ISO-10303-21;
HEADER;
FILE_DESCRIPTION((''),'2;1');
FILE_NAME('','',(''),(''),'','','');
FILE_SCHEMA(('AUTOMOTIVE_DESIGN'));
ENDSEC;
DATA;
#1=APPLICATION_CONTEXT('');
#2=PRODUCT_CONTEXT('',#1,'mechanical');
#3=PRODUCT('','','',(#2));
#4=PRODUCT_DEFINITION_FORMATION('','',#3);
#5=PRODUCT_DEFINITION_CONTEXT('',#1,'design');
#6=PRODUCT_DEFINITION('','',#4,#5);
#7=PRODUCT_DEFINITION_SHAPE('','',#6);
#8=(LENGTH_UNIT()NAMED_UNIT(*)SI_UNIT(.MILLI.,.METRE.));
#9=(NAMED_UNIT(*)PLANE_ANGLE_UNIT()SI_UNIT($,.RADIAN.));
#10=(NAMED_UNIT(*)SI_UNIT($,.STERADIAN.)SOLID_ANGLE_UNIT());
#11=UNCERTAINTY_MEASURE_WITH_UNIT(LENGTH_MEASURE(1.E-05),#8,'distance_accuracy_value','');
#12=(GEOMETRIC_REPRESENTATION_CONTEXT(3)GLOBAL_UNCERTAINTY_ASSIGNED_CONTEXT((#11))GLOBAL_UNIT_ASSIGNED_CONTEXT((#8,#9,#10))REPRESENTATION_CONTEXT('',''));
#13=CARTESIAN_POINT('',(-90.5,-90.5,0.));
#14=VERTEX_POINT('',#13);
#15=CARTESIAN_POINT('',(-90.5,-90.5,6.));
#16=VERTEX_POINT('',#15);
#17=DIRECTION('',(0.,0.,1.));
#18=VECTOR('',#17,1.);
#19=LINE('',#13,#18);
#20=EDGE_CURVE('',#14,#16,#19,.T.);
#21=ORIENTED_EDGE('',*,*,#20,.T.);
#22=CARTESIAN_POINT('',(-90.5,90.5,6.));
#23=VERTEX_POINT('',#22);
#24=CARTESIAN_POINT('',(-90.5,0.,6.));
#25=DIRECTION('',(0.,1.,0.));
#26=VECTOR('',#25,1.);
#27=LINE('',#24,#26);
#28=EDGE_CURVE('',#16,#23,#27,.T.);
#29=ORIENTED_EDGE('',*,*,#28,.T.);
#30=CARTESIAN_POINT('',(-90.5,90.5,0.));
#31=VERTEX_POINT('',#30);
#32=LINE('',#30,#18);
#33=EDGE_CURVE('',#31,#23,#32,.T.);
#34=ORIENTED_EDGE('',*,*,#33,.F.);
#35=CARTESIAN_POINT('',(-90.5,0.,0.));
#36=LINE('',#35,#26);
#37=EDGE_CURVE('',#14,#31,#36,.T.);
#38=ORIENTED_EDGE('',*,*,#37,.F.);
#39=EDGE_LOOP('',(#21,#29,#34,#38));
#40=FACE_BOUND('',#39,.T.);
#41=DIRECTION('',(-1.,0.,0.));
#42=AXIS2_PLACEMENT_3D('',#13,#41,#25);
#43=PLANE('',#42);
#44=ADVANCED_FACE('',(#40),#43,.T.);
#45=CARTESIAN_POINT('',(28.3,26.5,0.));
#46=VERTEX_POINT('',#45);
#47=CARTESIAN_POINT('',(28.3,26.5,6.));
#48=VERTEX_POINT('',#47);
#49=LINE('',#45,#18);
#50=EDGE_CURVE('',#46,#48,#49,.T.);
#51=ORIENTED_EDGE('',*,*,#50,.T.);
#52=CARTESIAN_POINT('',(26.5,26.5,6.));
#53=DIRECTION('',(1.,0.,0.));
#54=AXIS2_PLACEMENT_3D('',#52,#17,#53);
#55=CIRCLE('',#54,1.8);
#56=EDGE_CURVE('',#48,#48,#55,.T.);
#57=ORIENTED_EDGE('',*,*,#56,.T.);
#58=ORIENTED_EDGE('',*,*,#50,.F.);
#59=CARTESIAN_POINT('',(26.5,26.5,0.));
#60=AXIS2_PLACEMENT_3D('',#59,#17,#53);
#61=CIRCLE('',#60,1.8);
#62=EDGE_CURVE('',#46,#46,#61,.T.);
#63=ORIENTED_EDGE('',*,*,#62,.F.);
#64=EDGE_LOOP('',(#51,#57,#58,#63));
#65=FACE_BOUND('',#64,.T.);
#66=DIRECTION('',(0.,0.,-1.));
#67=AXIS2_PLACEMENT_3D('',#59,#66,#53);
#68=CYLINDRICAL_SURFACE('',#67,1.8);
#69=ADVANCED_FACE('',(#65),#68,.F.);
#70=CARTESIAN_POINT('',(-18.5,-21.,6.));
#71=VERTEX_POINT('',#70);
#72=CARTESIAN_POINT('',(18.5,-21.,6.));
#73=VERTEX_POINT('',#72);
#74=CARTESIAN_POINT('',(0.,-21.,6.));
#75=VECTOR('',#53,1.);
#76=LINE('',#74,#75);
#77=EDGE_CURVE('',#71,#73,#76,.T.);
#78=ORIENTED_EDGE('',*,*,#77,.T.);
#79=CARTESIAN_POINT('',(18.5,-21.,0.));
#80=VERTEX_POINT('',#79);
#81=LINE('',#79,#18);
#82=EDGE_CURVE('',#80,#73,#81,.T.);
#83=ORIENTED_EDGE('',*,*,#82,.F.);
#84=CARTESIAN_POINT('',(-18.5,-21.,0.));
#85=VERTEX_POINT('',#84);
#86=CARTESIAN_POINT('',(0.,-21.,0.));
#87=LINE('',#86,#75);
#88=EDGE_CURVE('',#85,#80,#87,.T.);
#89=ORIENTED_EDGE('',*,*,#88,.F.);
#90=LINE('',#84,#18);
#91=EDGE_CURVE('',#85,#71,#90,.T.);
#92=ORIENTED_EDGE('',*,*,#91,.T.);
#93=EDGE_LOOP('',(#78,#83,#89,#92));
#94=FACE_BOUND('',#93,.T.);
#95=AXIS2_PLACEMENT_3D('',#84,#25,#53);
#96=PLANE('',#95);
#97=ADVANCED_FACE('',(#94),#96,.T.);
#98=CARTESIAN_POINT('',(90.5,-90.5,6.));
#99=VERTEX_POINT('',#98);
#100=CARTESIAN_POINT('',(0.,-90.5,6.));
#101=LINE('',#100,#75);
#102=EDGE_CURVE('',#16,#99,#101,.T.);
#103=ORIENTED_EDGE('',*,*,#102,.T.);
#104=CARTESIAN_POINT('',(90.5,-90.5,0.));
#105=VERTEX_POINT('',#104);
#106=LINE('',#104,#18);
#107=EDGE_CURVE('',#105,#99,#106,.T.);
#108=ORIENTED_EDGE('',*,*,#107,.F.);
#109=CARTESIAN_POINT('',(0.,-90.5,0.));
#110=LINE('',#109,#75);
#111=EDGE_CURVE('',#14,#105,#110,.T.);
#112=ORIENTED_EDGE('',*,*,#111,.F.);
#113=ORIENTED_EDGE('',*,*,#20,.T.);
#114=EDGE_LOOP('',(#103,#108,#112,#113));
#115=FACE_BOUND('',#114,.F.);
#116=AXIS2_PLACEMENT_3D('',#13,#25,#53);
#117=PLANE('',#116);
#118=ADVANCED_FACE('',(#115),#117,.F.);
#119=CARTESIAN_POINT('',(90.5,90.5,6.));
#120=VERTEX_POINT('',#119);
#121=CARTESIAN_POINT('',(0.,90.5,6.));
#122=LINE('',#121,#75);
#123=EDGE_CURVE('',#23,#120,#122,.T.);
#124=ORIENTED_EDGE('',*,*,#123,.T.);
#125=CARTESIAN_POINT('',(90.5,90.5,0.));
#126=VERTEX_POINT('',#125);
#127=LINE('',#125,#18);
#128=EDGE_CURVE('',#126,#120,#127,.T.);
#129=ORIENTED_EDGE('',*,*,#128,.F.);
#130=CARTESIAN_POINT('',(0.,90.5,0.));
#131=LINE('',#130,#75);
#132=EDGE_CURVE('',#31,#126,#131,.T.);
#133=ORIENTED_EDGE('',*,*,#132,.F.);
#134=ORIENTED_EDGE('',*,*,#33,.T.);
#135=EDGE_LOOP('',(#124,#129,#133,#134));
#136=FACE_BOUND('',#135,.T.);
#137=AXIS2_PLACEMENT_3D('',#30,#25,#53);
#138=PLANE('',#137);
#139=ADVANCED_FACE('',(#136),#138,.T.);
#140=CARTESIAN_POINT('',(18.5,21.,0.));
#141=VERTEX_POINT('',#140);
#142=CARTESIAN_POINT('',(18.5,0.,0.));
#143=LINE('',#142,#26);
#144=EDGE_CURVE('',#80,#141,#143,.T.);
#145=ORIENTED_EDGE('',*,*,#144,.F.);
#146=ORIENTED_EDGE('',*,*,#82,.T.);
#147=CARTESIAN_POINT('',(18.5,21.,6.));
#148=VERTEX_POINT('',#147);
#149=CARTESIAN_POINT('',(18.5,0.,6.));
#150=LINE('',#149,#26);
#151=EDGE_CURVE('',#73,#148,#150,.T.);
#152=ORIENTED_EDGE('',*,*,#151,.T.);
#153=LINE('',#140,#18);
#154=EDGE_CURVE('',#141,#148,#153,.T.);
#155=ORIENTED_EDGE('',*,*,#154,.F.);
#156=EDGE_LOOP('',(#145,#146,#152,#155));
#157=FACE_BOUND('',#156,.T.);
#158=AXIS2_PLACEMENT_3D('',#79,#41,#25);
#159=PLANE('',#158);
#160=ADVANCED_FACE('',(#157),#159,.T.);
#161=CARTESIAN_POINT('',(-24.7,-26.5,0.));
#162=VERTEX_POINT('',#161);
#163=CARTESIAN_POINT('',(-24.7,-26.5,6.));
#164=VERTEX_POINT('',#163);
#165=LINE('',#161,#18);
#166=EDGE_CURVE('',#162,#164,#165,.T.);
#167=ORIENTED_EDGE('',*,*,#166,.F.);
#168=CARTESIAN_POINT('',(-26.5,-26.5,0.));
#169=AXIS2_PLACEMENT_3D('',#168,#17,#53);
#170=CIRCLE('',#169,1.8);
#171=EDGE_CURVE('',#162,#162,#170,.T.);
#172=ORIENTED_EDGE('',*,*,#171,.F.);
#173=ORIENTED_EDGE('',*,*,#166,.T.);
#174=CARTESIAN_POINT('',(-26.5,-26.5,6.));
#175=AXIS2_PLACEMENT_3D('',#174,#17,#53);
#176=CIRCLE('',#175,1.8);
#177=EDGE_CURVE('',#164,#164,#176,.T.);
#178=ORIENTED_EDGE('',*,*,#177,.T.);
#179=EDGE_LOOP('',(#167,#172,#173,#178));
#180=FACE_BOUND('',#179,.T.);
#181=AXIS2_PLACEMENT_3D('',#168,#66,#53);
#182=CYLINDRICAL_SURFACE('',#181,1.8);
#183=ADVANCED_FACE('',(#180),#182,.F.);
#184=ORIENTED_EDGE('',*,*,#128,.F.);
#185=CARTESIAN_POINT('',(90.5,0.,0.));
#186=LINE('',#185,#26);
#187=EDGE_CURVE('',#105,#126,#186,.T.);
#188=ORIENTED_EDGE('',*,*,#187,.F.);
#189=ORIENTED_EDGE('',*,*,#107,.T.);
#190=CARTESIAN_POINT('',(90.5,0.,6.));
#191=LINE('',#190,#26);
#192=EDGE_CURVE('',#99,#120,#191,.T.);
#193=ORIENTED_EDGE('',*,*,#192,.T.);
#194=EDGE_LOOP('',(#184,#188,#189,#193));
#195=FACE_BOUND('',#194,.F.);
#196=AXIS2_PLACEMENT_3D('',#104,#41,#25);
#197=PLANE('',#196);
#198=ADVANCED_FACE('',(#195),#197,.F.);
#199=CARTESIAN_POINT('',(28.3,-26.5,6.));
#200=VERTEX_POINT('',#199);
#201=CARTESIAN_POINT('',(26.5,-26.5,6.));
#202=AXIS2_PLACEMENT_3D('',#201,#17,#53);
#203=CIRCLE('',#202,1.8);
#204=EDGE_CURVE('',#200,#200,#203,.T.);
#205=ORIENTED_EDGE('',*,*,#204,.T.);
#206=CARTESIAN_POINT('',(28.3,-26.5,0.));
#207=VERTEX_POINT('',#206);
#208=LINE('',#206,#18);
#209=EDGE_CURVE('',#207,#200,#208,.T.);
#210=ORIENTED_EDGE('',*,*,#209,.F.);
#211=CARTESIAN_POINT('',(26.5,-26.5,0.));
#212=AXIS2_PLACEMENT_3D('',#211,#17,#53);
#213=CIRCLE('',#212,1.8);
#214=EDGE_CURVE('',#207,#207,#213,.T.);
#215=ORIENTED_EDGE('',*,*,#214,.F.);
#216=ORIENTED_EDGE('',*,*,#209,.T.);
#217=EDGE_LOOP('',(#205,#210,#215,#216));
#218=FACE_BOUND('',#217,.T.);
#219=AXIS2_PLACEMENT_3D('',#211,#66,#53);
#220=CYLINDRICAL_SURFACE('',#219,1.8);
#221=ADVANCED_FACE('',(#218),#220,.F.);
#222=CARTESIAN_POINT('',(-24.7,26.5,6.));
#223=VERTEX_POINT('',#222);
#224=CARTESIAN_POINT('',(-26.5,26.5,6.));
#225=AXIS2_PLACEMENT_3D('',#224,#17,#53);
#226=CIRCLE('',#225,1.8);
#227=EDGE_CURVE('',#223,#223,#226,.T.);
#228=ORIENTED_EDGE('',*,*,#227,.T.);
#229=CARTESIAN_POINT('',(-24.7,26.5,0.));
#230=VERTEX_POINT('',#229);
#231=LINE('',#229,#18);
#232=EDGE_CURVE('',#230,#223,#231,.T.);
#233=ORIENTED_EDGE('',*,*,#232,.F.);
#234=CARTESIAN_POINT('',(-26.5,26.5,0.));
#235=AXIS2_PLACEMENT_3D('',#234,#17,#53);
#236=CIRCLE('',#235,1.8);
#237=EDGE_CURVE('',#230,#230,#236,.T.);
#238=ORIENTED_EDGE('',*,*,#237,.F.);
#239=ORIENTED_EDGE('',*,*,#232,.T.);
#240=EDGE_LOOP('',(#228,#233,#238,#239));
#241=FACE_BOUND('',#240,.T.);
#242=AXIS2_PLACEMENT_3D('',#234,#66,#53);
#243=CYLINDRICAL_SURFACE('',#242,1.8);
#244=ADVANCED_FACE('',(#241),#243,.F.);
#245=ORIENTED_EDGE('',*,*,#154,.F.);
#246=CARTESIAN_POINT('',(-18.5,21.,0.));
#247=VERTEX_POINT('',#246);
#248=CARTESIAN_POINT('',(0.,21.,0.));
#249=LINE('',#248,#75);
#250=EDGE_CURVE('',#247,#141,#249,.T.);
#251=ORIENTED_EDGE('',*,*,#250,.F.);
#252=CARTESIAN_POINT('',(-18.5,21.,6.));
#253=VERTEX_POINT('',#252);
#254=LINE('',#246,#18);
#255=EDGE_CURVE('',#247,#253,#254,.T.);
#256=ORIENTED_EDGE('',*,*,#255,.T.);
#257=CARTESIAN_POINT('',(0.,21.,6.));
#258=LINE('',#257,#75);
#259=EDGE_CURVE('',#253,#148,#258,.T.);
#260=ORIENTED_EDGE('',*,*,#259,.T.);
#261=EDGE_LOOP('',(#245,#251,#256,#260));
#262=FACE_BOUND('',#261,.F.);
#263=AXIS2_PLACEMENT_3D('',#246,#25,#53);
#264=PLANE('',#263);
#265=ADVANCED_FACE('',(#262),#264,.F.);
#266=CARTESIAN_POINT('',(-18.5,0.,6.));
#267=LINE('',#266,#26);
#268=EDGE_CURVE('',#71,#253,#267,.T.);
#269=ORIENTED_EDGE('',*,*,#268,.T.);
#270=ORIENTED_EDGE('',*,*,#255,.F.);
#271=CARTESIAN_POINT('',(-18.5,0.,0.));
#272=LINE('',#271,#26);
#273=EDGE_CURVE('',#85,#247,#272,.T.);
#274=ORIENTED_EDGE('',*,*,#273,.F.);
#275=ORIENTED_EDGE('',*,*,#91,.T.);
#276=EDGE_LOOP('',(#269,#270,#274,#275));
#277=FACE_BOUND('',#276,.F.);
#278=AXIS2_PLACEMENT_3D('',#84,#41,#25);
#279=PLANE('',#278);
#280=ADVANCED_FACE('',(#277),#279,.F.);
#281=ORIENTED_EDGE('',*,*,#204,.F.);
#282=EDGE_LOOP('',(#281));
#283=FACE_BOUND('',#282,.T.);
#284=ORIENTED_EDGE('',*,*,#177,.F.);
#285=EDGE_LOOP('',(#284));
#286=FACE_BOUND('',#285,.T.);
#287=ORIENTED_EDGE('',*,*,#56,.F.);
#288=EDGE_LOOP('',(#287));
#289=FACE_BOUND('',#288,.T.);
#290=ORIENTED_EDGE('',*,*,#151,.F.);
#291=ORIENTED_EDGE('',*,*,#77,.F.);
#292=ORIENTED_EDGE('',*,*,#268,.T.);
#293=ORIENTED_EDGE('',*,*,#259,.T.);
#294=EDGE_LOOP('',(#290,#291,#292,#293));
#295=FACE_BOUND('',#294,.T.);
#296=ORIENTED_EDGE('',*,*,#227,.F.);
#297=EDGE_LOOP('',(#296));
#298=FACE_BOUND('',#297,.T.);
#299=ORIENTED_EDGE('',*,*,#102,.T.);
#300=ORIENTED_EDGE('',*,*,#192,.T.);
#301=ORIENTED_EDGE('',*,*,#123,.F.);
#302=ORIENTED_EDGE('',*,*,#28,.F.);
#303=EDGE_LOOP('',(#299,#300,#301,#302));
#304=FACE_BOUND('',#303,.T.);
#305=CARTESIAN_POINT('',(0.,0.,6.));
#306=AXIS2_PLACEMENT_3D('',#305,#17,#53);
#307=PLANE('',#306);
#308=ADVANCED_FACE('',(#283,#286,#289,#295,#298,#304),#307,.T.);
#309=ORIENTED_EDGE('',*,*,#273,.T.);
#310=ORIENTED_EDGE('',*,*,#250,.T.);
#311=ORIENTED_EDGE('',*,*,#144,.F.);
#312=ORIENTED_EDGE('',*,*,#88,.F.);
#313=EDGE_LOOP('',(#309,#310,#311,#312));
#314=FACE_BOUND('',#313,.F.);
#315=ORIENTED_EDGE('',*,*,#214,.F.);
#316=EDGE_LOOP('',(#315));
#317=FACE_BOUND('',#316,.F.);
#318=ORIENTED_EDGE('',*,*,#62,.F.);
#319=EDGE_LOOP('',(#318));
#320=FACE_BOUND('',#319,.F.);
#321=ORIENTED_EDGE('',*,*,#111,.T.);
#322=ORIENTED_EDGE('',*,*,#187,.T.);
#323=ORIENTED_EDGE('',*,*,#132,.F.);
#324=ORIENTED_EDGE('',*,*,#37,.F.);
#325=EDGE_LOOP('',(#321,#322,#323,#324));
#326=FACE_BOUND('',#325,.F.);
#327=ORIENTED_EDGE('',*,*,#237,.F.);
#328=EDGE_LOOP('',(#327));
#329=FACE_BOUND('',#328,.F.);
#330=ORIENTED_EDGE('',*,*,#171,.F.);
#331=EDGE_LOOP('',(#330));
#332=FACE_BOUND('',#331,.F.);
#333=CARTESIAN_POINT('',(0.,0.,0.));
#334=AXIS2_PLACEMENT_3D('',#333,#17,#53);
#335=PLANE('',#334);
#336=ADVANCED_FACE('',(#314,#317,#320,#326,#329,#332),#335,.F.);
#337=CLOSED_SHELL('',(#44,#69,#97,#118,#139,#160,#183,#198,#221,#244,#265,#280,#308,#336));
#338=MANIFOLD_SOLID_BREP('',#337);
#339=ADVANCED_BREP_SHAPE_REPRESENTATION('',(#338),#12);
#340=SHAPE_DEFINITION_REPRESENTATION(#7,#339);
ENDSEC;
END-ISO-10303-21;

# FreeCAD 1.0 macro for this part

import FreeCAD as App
import Part
import Sketcher
from FreeCAD import Vector

doc = App.newDocument("Part")
body = doc.addObject("PartDesign::Body", "Body")

# Sketch on XY plane
sketch1 = doc.addObject("Sketcher::SketchObject", "Sketch")
body.addObject(sketch1)
sketch1.AttachmentSupport = (doc.XY_Plane, [""])
sketch1.MapMode = "FlatFace"
sketch1.addGeometry([
    Part.LineSegment(Vector(-90.5, 90.5, 0), Vector(-90.5, -90.5, 0)),  # 0
    Part.LineSegment(Vector(-90.5, -90.5, 0), Vector(90.5, -90.5, 0)),  # 1
    Part.LineSegment(Vector(90.5, -90.5, 0), Vector(90.5, 90.5, 0)),  # 2
    Part.LineSegment(Vector(90.5, 90.5, 0), Vector(-90.5, 90.5, 0)),  # 3
    Part.Circle(Vector(-26.5, -26.5, 0), Vector(0, 0, 1), 1.8),  # 4
    Part.Circle(Vector(26.5, -26.5, 0), Vector(0, 0, 1), 1.8),  # 5
    Part.Circle(Vector(-26.5, 26.5, 0), Vector(0, 0, 1), 1.8),  # 6
    Part.LineSegment(Vector(18.5, -21, 0), Vector(-18.5, -21, 0)),  # 7
    Part.LineSegment(Vector(-18.5, -21, 0), Vector(-18.5, 21, 0)),  # 8
    Part.LineSegment(Vector(-18.5, 21, 0), Vector(18.5, 21, 0)),  # 9
    Part.LineSegment(Vector(18.5, 21, 0), Vector(18.5, -21, 0)),  # 10
    Part.Circle(Vector(26.5, 26.5, 0), Vector(0, 0, 1), 1.8),  # 11
], False)
sketch1.addConstraint([
    Sketcher.Constraint("Coincident", 0, 2, 1, 1),
    Sketcher.Constraint("Coincident", 1, 2, 2, 1),
    Sketcher.Constraint("Coincident", 2, 2, 3, 1),
    Sketcher.Constraint("Coincident", 3, 2, 0, 1),
    Sketcher.Constraint("Coincident", 7, 2, 8, 1),
    Sketcher.Constraint("Coincident", 8, 2, 9, 1),
    Sketcher.Constraint("Coincident", 9, 2, 10, 1),
    Sketcher.Constraint("Coincident", 10, 2, 7, 1),
    Sketcher.Constraint("Vertical", 0),
    Sketcher.Constraint("Horizontal", 1),
    Sketcher.Constraint("Vertical", 2),
    Sketcher.Constraint("Horizontal", 3),
    Sketcher.Constraint("Horizontal", 7),
    Sketcher.Constraint("Vertical", 8),
    Sketcher.Constraint("Horizontal", 9),
    Sketcher.Constraint("Vertical", 10),
    Sketcher.Constraint("Equal", 4, 5),
    Sketcher.Constraint("Equal", 5, 6),
    Sketcher.Constraint("Equal", 6, 11),
    Sketcher.Constraint("Symmetric", 5, 3, 6, 3, -1, 1),
    Sketcher.Constraint("Symmetric", 4, 3, 11, 3, -1, 1),
    Sketcher.Constraint("Symmetric", 0, 2, 2, 2, -1, 1),
    Sketcher.Constraint("Symmetric", 7, 2, 9, 2, -1, 1),
    Sketcher.Constraint("Symmetric", 4, 3, 5, 3, -2),
    Sketcher.Constraint("Equal", 3, 0),
    Sketcher.Constraint("Diameter", 4, 3.6),
    Sketcher.Constraint("DistanceX", 1, 1, 1, 2, 181.0),
    Sketcher.Constraint("DistanceX", 7, 2, 7, 1, 37.0),
    Sketcher.Constraint("DistanceY", 8, 1, 8, 2, 42.0),
    Sketcher.Constraint("DistanceX", 4, 3, 5, 3, 53.0),
    Sketcher.Constraint("DistanceY", 4, 3, 6, 3, 53.0),
])
pad1 = doc.addObject("PartDesign::Pad", "Pad")
body.addObject(pad1)
pad1.Profile = sketch1
pad1.Length = 6

doc.recompute()
